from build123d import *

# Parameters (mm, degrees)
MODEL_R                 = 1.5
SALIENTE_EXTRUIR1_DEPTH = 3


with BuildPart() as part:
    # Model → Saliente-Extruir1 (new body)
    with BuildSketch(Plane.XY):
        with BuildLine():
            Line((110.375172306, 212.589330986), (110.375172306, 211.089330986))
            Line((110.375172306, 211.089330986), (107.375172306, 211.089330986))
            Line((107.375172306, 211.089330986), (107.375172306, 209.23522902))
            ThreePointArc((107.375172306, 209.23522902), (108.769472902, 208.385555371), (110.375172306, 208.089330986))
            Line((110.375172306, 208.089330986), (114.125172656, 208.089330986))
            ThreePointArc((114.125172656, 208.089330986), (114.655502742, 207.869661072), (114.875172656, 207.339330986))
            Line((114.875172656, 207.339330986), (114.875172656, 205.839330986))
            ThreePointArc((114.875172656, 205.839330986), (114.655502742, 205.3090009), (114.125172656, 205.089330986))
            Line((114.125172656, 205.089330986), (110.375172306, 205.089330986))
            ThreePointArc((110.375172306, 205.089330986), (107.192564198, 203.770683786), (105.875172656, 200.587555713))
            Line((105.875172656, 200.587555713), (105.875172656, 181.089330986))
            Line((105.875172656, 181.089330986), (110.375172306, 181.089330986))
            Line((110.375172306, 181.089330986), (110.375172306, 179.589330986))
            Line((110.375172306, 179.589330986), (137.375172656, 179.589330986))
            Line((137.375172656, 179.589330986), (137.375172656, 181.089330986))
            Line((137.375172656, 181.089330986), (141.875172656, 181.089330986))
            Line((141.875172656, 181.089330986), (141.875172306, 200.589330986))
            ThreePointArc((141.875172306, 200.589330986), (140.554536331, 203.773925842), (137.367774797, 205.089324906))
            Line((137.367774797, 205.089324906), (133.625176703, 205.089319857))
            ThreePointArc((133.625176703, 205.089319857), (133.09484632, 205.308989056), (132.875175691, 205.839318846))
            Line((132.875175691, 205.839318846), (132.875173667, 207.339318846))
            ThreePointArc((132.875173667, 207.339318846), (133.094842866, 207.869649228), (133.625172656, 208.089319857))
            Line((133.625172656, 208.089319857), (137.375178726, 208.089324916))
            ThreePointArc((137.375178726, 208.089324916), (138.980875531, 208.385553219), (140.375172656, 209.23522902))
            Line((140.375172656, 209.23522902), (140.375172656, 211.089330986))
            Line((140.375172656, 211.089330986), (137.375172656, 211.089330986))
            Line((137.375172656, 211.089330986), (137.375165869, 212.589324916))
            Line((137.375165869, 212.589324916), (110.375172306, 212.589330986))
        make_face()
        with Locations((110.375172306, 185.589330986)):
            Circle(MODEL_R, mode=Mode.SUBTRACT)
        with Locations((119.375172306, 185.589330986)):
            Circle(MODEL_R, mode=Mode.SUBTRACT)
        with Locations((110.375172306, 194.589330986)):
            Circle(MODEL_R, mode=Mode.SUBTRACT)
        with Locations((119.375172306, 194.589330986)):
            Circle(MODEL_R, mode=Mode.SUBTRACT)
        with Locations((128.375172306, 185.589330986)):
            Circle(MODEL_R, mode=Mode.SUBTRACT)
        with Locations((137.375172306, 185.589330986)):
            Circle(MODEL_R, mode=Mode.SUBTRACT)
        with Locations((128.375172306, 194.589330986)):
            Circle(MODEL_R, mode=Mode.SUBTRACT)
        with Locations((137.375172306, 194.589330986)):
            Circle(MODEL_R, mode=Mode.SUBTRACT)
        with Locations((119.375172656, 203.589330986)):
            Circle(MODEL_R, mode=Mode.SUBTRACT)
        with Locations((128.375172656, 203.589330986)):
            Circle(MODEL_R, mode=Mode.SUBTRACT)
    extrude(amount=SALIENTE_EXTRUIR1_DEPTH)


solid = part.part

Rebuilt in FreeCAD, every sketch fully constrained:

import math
import FreeCAD as App
import Part
import Sketcher
Q = App.Units.Quantity

doc = App.newDocument("Part")
params = doc.addObject("Spreadsheet::Sheet", "Params")
for row, (alias, value) in enumerate([
    ("sketch1_diameter", "3 mm"),
    ("sketch1_radius", "4.5 mm"),
    ("sketch1_width", "3 mm"),
    ("sketch1_width2", "27 mm"),
    ("sketch1_radius2", "0.75 mm"),
    ("pad1_length", "3 mm"),
], start=1):
    params.set(f"A{row}", alias)
    params.set(f"B{row}", "=" + value)
    params.setAlias(f"B{row}", alias)

body = doc.addObject("PartDesign::Body", "Body")

sketch1 = body.newObject("Sketcher::SketchObject", "Sketch")
sketch1.AttachmentSupport = (doc.getObject("XY_Plane"), [""])
sketch1.MapMode = "FlatFace"
sketch1.addGeometry([
    Part.LineSegment(App.Vector(110.4, 212.6, 0), App.Vector(110.4, 211.1, 0)),
    Part.LineSegment(App.Vector(110.4, 211.1, 0), App.Vector(107.4, 211.1, 0)),
    Part.LineSegment(App.Vector(107.4, 211.1, 0), App.Vector(107.4, 209.2, 0)),
    Part.ArcOfCircle(Part.Circle(App.Vector(110.4, 212.6, 0), App.Vector(0, 0, 1), 4.5), math.radians(-132), math.radians(-90)),
    Part.LineSegment(App.Vector(110.4, 208.1, 0), App.Vector(114.1, 208.1, 0)),
    Part.ArcOfCircle(Part.Circle(App.Vector(114.1, 207.3, 0), App.Vector(0, 0, 1), 0.8), math.radians(0), math.radians(90)),
    Part.LineSegment(App.Vector(114.9, 207.3, 0), App.Vector(114.9, 205.8, 0)),
    Part.ArcOfCircle(Part.Circle(App.Vector(114.1, 205.8, 0), App.Vector(0, 0, 1), 0.8), math.radians(-90), math.radians(0)),
    Part.LineSegment(App.Vector(114.1, 205.1, 0), App.Vector(110.4, 205.1, 0)),
    Part.ArcOfCircle(Part.Circle(App.Vector(110.4, 200.6, 0), App.Vector(0, 0, 1), 4.5), math.radians(90), math.radians(180)),
    Part.LineSegment(App.Vector(105.9, 200.6, 0), App.Vector(105.9, 181.1, 0)),
    Part.LineSegment(App.Vector(105.9, 181.1, 0), App.Vector(110.4, 181.1, 0)),
    Part.LineSegment(App.Vector(110.4, 181.1, 0), App.Vector(110.4, 179.6, 0)),
    Part.LineSegment(App.Vector(110.4, 179.6, 0), App.Vector(137.4, 179.6, 0)),
    Part.LineSegment(App.Vector(137.4, 179.6, 0), App.Vector(137.4, 181.1, 0)),
    Part.LineSegment(App.Vector(137.4, 181.1, 0), App.Vector(141.9, 181.1, 0)),
    Part.LineSegment(App.Vector(141.9, 181.1, 0), App.Vector(141.9, 200.6, 0)),
    Part.ArcOfCircle(Part.Circle(App.Vector(137.4, 200.6, 0), App.Vector(0, 0, 1), 4.5), math.radians(0), math.radians(90)),
    Part.LineSegment(App.Vector(137.4, 205.1, 0), App.Vector(133.6, 205.1, 0)),
    Part.ArcOfCircle(Part.Circle(App.Vector(133.6, 205.8, 0), App.Vector(0, 0, 1), 0.8), math.radians(-180), math.radians(-90)),
    Part.LineSegment(App.Vector(132.9, 205.8, 0), App.Vector(132.9, 207.3, 0)),
    Part.ArcOfCircle(Part.Circle(App.Vector(133.6, 207.3, 0), App.Vector(0, 0, 1), 0.8), math.radians(90), math.radians(180)),
    Part.LineSegment(App.Vector(133.6, 208.1, 0), App.Vector(137.4, 208.1, 0)),
    Part.ArcOfCircle(Part.Circle(App.Vector(137.4, 212.6, 0), App.Vector(0, 0, 1), 4.5), math.radians(-90), math.radians(-48)),
    Part.LineSegment(App.Vector(140.4, 209.2, 0), App.Vector(140.4, 211.1, 0)),
    Part.LineSegment(App.Vector(140.4, 211.1, 0), App.Vector(137.4, 211.1, 0)),
    Part.LineSegment(App.Vector(137.4, 211.1, 0), App.Vector(137.4, 212.6, 0)),
    Part.LineSegment(App.Vector(137.4, 212.6, 0), App.Vector(110.4, 212.6, 0)),
    Part.Circle(App.Vector(110.4, 185.6, 0), App.Vector(0, 0, 1), 1.5),
    Part.Circle(App.Vector(119.4, 185.6, 0), App.Vector(0, 0, 1), 1.5),
    Part.Circle(App.Vector(128.4, 185.6, 0), App.Vector(0, 0, 1), 1.5),
    Part.Circle(App.Vector(137.4, 185.6, 0), App.Vector(0, 0, 1), 1.5),
    Part.Circle(App.Vector(110.4, 194.6, 0), App.Vector(0, 0, 1), 1.5),
    Part.Circle(App.Vector(119.4, 194.6, 0), App.Vector(0, 0, 1), 1.5),
    Part.Circle(App.Vector(119.4, 203.6, 0), App.Vector(0, 0, 1), 1.5),
    Part.Circle(App.Vector(128.4, 194.6, 0), App.Vector(0, 0, 1), 1.5),
    Part.Circle(App.Vector(137.4, 194.6, 0), App.Vector(0, 0, 1), 1.5),
    Part.Circle(App.Vector(128.4, 203.6, 0), App.Vector(0, 0, 1), 1.5),
], False)
sketch1.addConstraint([
    Sketcher.Constraint("Coincident", 0, 2, 1, 1),
    Sketcher.Constraint("Coincident", 1, 2, 2, 1),
    Sketcher.Constraint("Coincident", 2, 2, 3, 1),
    Sketcher.Constraint("Tangent", 3, 2, 4, 1),
    Sketcher.Constraint("Tangent", 4, 2, 5, 2),
    Sketcher.Constraint("Tangent", 5, 1, 6, 1),
    Sketcher.Constraint("Tangent", 6, 2, 7, 2),
    Sketcher.Constraint("Tangent", 7, 1, 8, 1),
    Sketcher.Constraint("Tangent", 8, 2, 9, 1),
    Sketcher.Constraint("Coincident", 9, 2, 10, 1),
    Sketcher.Constraint("Coincident", 10, 2, 11, 1),
    Sketcher.Constraint("Coincident", 11, 2, 12, 1),
    Sketcher.Constraint("Coincident", 12, 2, 13, 1),
    Sketcher.Constraint("Coincident", 13, 2, 14, 1),
    Sketcher.Constraint("Coincident", 14, 2, 15, 1),
    Sketcher.Constraint("Coincident", 15, 2, 16, 1),
    Sketcher.Constraint("Tangent", 16, 2, 17, 1),
    Sketcher.Constraint("Coincident", 17, 2, 18, 1),
    Sketcher.Constraint("Tangent", 18, 2, 19, 2),
    Sketcher.Constraint("Tangent", 19, 1, 20, 1),
    Sketcher.Constraint("Tangent", 20, 2, 21, 2),
    Sketcher.Constraint("Tangent", 21, 1, 22, 1),
    Sketcher.Constraint("Tangent", 22, 2, 23, 1),
    Sketcher.Constraint("Coincident", 23, 2, 24, 1),
    Sketcher.Constraint("Coincident", 24, 2, 25, 1),
    Sketcher.Constraint("Coincident", 25, 2, 26, 1),
    Sketcher.Constraint("Coincident", 26, 2, 27, 1),
    Sketcher.Constraint("Coincident", 27, 2, 0, 1),
    Sketcher.Constraint("Vertical", 0),
    Sketcher.Constraint("Horizontal", 1),
    Sketcher.Constraint("Vertical", 2),
    Sketcher.Constraint("Horizontal", 4),
    Sketcher.Constraint("Vertical", 6),
    Sketcher.Constraint("Horizontal", 8),
    Sketcher.Constraint("Vertical", 10),
    Sketcher.Constraint("Horizontal", 11),
    Sketcher.Constraint("Vertical", 12),
    Sketcher.Constraint("Horizontal", 13),
    Sketcher.Constraint("Vertical", 14),
    Sketcher.Constraint("Horizontal", 15),
    Sketcher.Constraint("Vertical", 16),
    Sketcher.Constraint("Vertical", 24),
    Sketcher.Constraint("Horizontal", 25),
    Sketcher.Constraint("Coincident", 26, 2, 23, 3),
    Sketcher.Constraint("Coincident", 27, 2, 3, 3),
    Sketcher.Constraint("Equal", 5, 7),
    Sketcher.Constraint("Equal", 3, 9),
    Sketcher.Constraint("Equal", 9, 17),
    Sketcher.Constraint("Equal", 7, 19),
    Sketcher.Constraint("Equal", 19, 21),
    Sketcher.Constraint("Equal", 17, 23),
    Sketcher.Constraint("Equal", 28, 29),
    Sketcher.Constraint("Equal", 29, 30),
    Sketcher.Constraint("Equal", 30, 31),
    Sketcher.Constraint("Equal", 31, 32),
    Sketcher.Constraint("Equal", 32, 33),
    Sketcher.Constraint("Equal", 33, 34),
    Sketcher.Constraint("Equal", 34, 35),
    Sketcher.Constraint("Equal", 35, 36),
    Sketcher.Constraint("Equal", 36, 37),
    Sketcher.Constraint("Perpendicular", 18, 20),
    Sketcher.Constraint("Perpendicular", 20, 22),
    Sketcher.Constraint("Parallel", 22, 27),
    Sketcher.Constraint("Horizontal", 9, 3, 17, 3),
    Sketcher.Constraint("Horizontal", 28, 3, 29, 3),
    Sketcher.Constraint("Horizontal", 29, 3, 30, 3),
    Sketcher.Constraint("Horizontal", 30, 3, 31, 3),
    Sketcher.Constraint("Horizontal", 32, 3, 33, 3),
    Sketcher.Constraint("Horizontal", 33, 3, 35, 3),
    Sketcher.Constraint("Horizontal", 35, 3, 36, 3),
    Sketcher.Constraint("Horizontal", 34, 3, 37, 3),
    Sketcher.Constraint("Horizontal", 11, 2, 14, 2),
    Sketcher.Constraint("Horizontal", 21, 3, 20, 2),
    Sketcher.Constraint("Horizontal", 2, 2, 23, 2),
    Sketcher.Constraint("Horizontal", 1, 2, 24, 2),
    Sketcher.Constraint("Vertical", 3, 3, 9, 3),
    Sketcher.Constraint("Vertical", 9, 3, 28, 3),
    Sketcher.Constraint("Vertical", 17, 3, 31, 3),
    Sketcher.Constraint("Vertical", 28, 3, 32, 3),
    Sketcher.Constraint("Vertical", 29, 3, 33, 3),
    Sketcher.Constraint("Vertical", 33, 3, 34, 3),
    Sketcher.Constraint("Vertical", 30, 3, 35, 3),
    Sketcher.Constraint("Vertical", 31, 3, 36, 3),
    Sketcher.Constraint("Vertical", 35, 3, 37, 3),
    Sketcher.Constraint("Vertical", 8, 2, 11, 2),
    Sketcher.Constraint("Vertical", 36, 3, 13, 2),
    Sketcher.Constraint("Vertical", 14, 2, 25, 2),
    Sketcher.Constraint("Equal", 1, 25),
    Sketcher.Constraint("Equal", 0, 6),
    Sketcher.Constraint("Equal", 6, 12),
    Sketcher.Constraint("Diameter", 28, Q("3 mm")),
    Sketcher.Constraint("Radius", 3, Q("4.5 mm")),
    Sketcher.Constraint("DistanceX", 1, 2, 1, 1, Q("3 mm")),
    Sketcher.Constraint("DistanceX", 13, 1, 13, 2, Q("27 mm")),
    Sketcher.Constraint("Radius", 5, Q("0.75 mm")),
    Sketcher.Constraint("DistanceY", 0, 2, 0, 1, Q("1.5 mm")),
    Sketcher.Constraint("DistanceY", 16, 1, 16, 2, Q("19.5 mm")),
    Sketcher.Constraint("DistanceY", 28, 3, 9, 3, Q("15 mm")),
    Sketcher.Constraint("DistanceX", 28, 3, 29, 3, Q("9 mm")),
    Sketcher.Constraint("DistanceX", 29, 3, 30, 3, Q("9 mm")),
    Sketcher.Constraint("DistanceY", 32, 3, 9, 3, Q("6 mm")),
    Sketcher.Constraint("DistanceY", 33, 3, 34, 3, Q("9 mm")),
    Sketcher.Constraint("DistanceX", 4, 1, 4, 2, Q("3.75 mm")),
    Sketcher.Constraint("DistanceX", 5, 3, 21, 3, Q("19.500001 mm")),
    Sketcher.Constraint("Distance", 18, Q("3.742598 mm")),
    Sketcher.Constraint("DistanceY", 10, 2, 10, 1, Q("19.498225 mm")),
    Sketcher.Constraint("DistanceY", -1, 1, 3, 3, Q("212.589331 mm")),
    Sketcher.Constraint("DistanceX", -1, 1, 22, 2, Q("137.375179 mm")),
])
sketch1.setExpression("Constraints[90]", "Params.sketch1_diameter")
sketch1.setExpression("Constraints[91]", "Params.sketch1_radius")
sketch1.setExpression("Constraints[92]", "Params.sketch1_width")
sketch1.setExpression("Constraints[93]", "Params.sketch1_width2")
sketch1.setExpression("Constraints[94]", "Params.sketch1_radius2")
pad1 = body.newObject("PartDesign::Pad", "Pad")
pad1.Profile = sketch1
pad1.setExpression("Length", "Params.pad1_length")

doc.recompute()
